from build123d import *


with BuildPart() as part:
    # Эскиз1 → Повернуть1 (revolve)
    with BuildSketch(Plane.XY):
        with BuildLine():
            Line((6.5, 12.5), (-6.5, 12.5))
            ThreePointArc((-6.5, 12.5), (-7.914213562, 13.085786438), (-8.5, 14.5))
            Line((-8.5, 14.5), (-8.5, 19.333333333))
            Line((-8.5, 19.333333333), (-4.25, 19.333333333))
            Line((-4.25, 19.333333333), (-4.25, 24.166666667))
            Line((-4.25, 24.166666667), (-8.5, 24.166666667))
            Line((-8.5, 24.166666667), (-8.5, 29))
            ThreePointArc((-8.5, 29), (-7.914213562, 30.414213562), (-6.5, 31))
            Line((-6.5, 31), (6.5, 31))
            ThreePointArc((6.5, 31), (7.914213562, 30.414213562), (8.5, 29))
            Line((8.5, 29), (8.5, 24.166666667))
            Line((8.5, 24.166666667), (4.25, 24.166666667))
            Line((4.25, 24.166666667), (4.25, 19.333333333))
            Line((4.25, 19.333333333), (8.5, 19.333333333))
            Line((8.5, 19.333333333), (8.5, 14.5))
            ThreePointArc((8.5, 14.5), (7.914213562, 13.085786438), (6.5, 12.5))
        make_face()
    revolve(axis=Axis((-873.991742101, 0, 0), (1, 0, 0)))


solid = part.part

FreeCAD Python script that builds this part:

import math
import FreeCAD as App
import Part
import Sketcher

doc = App.newDocument("Part")
body = doc.addObject("PartDesign::Body", "Body")

# Sketch on XY plane
sketch1 = body.newObject("Sketcher::SketchObject", "Sketch")
sketch1.AttachmentSupport = (doc.getObject("XY_Plane"), [""])
sketch1.MapMode = "FlatFace"
sketch1.addGeometry([
    Part.LineSegment(App.Vector(-6.5, 12.5, 0), App.Vector(6.5, 12.5, 0)),  # 0
    Part.ArcOfCircle(Part.Circle(App.Vector(6.5, 14.5, 0), App.Vector(0, 0, 1), 2), math.radians(-90), math.radians(0)),  # 1
    Part.LineSegment(App.Vector(8.5, 14.5, 0), App.Vector(8.5, 19.3, 0)),  # 2
    Part.LineSegment(App.Vector(8.5, 19.3, 0), App.Vector(4.2, 19.3, 0)),  # 3
    Part.LineSegment(App.Vector(4.2, 19.3, 0), App.Vector(4.2, 24.2, 0)),  # 4
    Part.LineSegment(App.Vector(4.2, 24.2, 0), App.Vector(8.5, 24.2, 0)),  # 5
    Part.LineSegment(App.Vector(8.5, 24.2, 0), App.Vector(8.5, 29, 0)),  # 6
    Part.ArcOfCircle(Part.Circle(App.Vector(6.5, 29, 0), App.Vector(0, 0, 1), 2), math.radians(0), math.radians(90)),  # 7
    Part.LineSegment(App.Vector(6.5, 31, 0), App.Vector(-6.5, 31, 0)),  # 8
    Part.ArcOfCircle(Part.Circle(App.Vector(-6.5, 29, 0), App.Vector(0, 0, 1), 2), math.radians(90), math.radians(180)),  # 9
    Part.LineSegment(App.Vector(-8.5, 29, 0), App.Vector(-8.5, 24.2, 0)),  # 10
    Part.LineSegment(App.Vector(-8.5, 24.2, 0), App.Vector(-4.2, 24.2, 0)),  # 11
    Part.LineSegment(App.Vector(-4.2, 24.2, 0), App.Vector(-4.2, 19.3, 0)),  # 12
    Part.LineSegment(App.Vector(-4.2, 19.3, 0), App.Vector(-8.5, 19.3, 0)),  # 13
    Part.LineSegment(App.Vector(-8.5, 19.3, 0), App.Vector(-8.5, 14.5, 0)),  # 14
    Part.ArcOfCircle(Part.Circle(App.Vector(-6.5, 14.5, 0), App.Vector(0, 0, 1), 2), math.radians(-180), math.radians(-90)),  # 15
], False)
sketch1.addConstraint([
    Sketcher.Constraint("Tangent", 0, 2, 1, 1),
    Sketcher.Constraint("Tangent", 1, 2, 2, 1),
    Sketcher.Constraint("Coincident", 2, 2, 3, 1),
    Sketcher.Constraint("Coincident", 3, 2, 4, 1),
    Sketcher.Constraint("Coincident", 4, 2, 5, 1),
    Sketcher.Constraint("Coincident", 5, 2, 6, 1),
    Sketcher.Constraint("Tangent", 6, 2, 7, 1),
    Sketcher.Constraint("Tangent", 7, 2, 8, 1),
    Sketcher.Constraint("Tangent", 8, 2, 9, 1),
    Sketcher.Constraint("Tangent", 9, 2, 10, 1),
    Sketcher.Constraint("Coincident", 10, 2, 11, 1),
    Sketcher.Constraint("Coincident", 11, 2, 12, 1),
    Sketcher.Constraint("Coincident", 12, 2, 13, 1),
    Sketcher.Constraint("Coincident", 13, 2, 14, 1),
    Sketcher.Constraint("Tangent", 14, 2, 15, 1),
    Sketcher.Constraint("Tangent", 15, 2, 0, 1),
    Sketcher.Constraint("Horizontal", 0),
    Sketcher.Constraint("Vertical", 2),
    Sketcher.Constraint("Horizontal", 3),
    Sketcher.Constraint("Vertical", 4),
    Sketcher.Constraint("Horizontal", 5),
    Sketcher.Constraint("Vertical", 6),
    Sketcher.Constraint("Horizontal", 8),
    Sketcher.Constraint("Vertical", 10),
    Sketcher.Constraint("Horizontal", 11),
    Sketcher.Constraint("Vertical", 12),
    Sketcher.Constraint("Horizontal", 13),
    Sketcher.Constraint("Vertical", 14),
    Sketcher.Constraint("Equal", 1, 7),
    Sketcher.Constraint("Equal", 7, 9),
    Sketcher.Constraint("Equal", 9, 15),
    Sketcher.Constraint("Symmetric", 5, 2, 10, 2, -2),
    Sketcher.Constraint("Symmetric", 3, 2, 12, 2, -2),
    Sketcher.Constraint("Vertical", 1, 3, 7, 3),
    Sketcher.Constraint("Vertical", 9, 3, 15, 3),
    Sketcher.Constraint("Equal", 2, 4),
    Sketcher.Constraint("Equal", 4, 6),
    Sketcher.Constraint("Radius", 1, 2.0),
    Sketcher.Constraint("DistanceX", 0, 1, 0, 2, 13.0),
    Sketcher.Constraint("DistanceY", -1, 1, 7, 3, 29.0),
    Sketcher.Constraint("DistanceX", 3, 2, 3, 1, 4.25),
    Sketcher.Constraint("DistanceY", -1, 1, 1, 3, 14.5),
])
revolution = body.newObject("PartDesign::Revolution", "Revolution")
revolution.Profile = sketch1
revolution.ReferenceAxis = (sketch1, ["H_Axis"])
revolution.Angle = 360

doc.recompute()
